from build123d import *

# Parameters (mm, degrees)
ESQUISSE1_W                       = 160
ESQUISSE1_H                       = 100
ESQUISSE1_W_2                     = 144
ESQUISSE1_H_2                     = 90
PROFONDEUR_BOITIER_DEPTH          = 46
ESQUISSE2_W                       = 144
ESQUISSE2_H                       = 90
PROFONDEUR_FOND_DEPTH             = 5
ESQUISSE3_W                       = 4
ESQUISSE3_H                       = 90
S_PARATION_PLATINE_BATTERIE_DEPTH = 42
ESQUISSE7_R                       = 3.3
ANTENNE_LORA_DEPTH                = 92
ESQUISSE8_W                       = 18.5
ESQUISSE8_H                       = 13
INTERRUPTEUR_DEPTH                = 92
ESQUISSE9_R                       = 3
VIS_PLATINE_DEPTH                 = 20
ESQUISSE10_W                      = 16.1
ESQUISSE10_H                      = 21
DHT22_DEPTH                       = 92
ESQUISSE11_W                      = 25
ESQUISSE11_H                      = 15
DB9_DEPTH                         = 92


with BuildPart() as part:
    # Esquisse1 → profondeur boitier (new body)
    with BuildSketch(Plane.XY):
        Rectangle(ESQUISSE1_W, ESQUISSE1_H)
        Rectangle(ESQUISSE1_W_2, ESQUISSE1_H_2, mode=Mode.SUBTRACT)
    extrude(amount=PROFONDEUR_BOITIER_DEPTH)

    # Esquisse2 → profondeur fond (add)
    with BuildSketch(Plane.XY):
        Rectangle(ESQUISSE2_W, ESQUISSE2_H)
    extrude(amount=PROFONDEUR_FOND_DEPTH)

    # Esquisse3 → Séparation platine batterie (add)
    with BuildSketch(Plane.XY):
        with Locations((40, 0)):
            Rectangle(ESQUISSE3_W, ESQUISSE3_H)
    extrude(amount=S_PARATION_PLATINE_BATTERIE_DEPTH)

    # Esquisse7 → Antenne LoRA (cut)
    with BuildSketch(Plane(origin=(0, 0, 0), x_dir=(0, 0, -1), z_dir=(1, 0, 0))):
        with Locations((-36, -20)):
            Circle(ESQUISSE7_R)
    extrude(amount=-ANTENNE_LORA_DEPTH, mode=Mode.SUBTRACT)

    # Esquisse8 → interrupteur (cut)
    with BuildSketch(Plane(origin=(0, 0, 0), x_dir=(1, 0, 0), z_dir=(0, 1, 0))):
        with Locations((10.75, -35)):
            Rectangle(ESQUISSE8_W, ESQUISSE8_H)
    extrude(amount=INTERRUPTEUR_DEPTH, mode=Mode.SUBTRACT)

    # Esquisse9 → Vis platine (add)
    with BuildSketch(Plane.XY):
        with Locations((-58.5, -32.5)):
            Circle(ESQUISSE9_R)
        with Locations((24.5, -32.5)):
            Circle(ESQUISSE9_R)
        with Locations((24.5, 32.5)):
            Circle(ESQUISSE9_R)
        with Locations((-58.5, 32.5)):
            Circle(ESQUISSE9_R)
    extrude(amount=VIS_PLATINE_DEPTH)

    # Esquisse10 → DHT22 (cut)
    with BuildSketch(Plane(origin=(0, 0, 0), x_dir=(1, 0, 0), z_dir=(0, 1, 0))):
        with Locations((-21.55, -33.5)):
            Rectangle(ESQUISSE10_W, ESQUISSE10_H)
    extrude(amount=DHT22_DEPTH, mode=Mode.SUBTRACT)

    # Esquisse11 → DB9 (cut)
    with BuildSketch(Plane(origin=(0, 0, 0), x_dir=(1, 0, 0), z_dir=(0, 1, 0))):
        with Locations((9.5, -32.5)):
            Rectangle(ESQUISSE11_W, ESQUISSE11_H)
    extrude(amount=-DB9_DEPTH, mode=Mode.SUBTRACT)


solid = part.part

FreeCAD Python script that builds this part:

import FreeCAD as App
import Part
import Sketcher
Q = App.Units.Quantity

doc = App.newDocument("Part")
body = doc.addObject("PartDesign::Body", "Body")

# Sketch on XY plane
sketch1 = body.newObject("Sketcher::SketchObject", "Sketch")
sketch1.AttachmentSupport = (doc.getObject("XY_Plane"), [""])
sketch1.MapMode = "FlatFace"
sketch1.addGeometry([
    Part.LineSegment(App.Vector(-80, 50, 0), App.Vector(-80, -50, 0)),  # 0
    Part.LineSegment(App.Vector(-80, -50, 0), App.Vector(80, -50, 0)),  # 1
    Part.LineSegment(App.Vector(80, -50, 0), App.Vector(80, 50, 0)),  # 2
    Part.LineSegment(App.Vector(80, 50, 0), App.Vector(-80, 50, 0)),  # 3
    Part.LineSegment(App.Vector(72, -45, 0), App.Vector(-72, -45, 0)),  # 4
    Part.LineSegment(App.Vector(-72, -45, 0), App.Vector(-72, 45, 0)),  # 5
    Part.LineSegment(App.Vector(-72, 45, 0), App.Vector(72, 45, 0)),  # 6
    Part.LineSegment(App.Vector(72, 45, 0), App.Vector(72, -45, 0)),  # 7
], False)
sketch1.addConstraint([
    Sketcher.Constraint("Coincident", 0, 2, 1, 1),
    Sketcher.Constraint("Coincident", 1, 2, 2, 1),
    Sketcher.Constraint("Coincident", 2, 2, 3, 1),
    Sketcher.Constraint("Coincident", 3, 2, 0, 1),
    Sketcher.Constraint("Coincident", 4, 2, 5, 1),
    Sketcher.Constraint("Coincident", 5, 2, 6, 1),
    Sketcher.Constraint("Coincident", 6, 2, 7, 1),
    Sketcher.Constraint("Coincident", 7, 2, 4, 1),
    Sketcher.Constraint("Vertical", 0),
    Sketcher.Constraint("Horizontal", 1),
    Sketcher.Constraint("Vertical", 2),
    Sketcher.Constraint("Horizontal", 3),
    Sketcher.Constraint("Horizontal", 4),
    Sketcher.Constraint("Vertical", 5),
    Sketcher.Constraint("Horizontal", 6),
    Sketcher.Constraint("Vertical", 7),
    Sketcher.Constraint("Symmetric", 0, 2, 2, 2, -1, 1),
    Sketcher.Constraint("Symmetric", 4, 2, 6, 2, -1, 1),
    Sketcher.Constraint("DistanceX", 1, 1, 1, 2, Q("160 mm")),
    Sketcher.Constraint("DistanceX", 4, 2, 4, 1, Q("144 mm")),
    Sketcher.Constraint("DistanceY", 0, 2, 0, 1, Q("100 mm")),
    Sketcher.Constraint("DistanceY", 5, 1, 5, 2, Q("90 mm")),
])
pad1 = body.newObject("PartDesign::Pad", "Pad")
pad1.Profile = sketch1
pad1.Length = 46

# Sketch on XY plane
sketch2 = body.newObject("Sketcher::SketchObject", "Sketch001")
sketch2.AttachmentSupport = (doc.getObject("XY_Plane"), [""])
sketch2.MapMode = "FlatFace"
sketch2.addGeometry([
    Part.LineSegment(App.Vector(-72, 45, 0), App.Vector(-72, -45, 0)),
    Part.LineSegment(App.Vector(-72, -45, 0), App.Vector(72, -45, 0)),
    Part.LineSegment(App.Vector(72, -45, 0), App.Vector(72, 45, 0)),
    Part.LineSegment(App.Vector(72, 45, 0), App.Vector(-72, 45, 0)),
], False)
sketch2.addConstraint([
    Sketcher.Constraint("Coincident", 0, 2, 1, 1),
    Sketcher.Constraint("Coincident", 1, 2, 2, 1),
    Sketcher.Constraint("Coincident", 2, 2, 3, 1),
    Sketcher.Constraint("Coincident", 3, 2, 0, 1),
    Sketcher.Constraint("Vertical", 0),
    Sketcher.Constraint("Horizontal", 1),
    Sketcher.Constraint("Vertical", 2),
    Sketcher.Constraint("Horizontal", 3),
    Sketcher.Constraint("Symmetric", 0, 2, 2, 2, -1, 1),
    Sketcher.Constraint("DistanceX", 1, 1, 1, 2, Q("144 mm")),
    Sketcher.Constraint("DistanceY", 0, 2, 0, 1, Q("90 mm")),
])
pad2 = body.newObject("PartDesign::Pad", "Pad001")
pad2.Profile = sketch2
pad2.Length = 5

# Sketch on XY plane
sketch3 = body.newObject("Sketcher::SketchObject", "Sketch002")
sketch3.AttachmentSupport = (doc.getObject("XY_Plane"), [""])
sketch3.MapMode = "FlatFace"
sketch3.addGeometry([
    Part.LineSegment(App.Vector(38, 45, 0), App.Vector(38, -45, 0)),
    Part.LineSegment(App.Vector(38, -45, 0), App.Vector(42, -45, 0)),
    Part.LineSegment(App.Vector(42, -45, 0), App.Vector(42, 45, 0)),
    Part.LineSegment(App.Vector(42, 45, 0), App.Vector(38, 45, 0)),
], False)
sketch3.addConstraint([
    Sketcher.Constraint("Coincident", 0, 2, 1, 1),
    Sketcher.Constraint("Coincident", 1, 2, 2, 1),
    Sketcher.Constraint("Coincident", 2, 2, 3, 1),
    Sketcher.Constraint("Coincident", 3, 2, 0, 1),
    Sketcher.Constraint("Vertical", 0),
    Sketcher.Constraint("Horizontal", 1),
    Sketcher.Constraint("Vertical", 2),
    Sketcher.Constraint("Horizontal", 3),
    Sketcher.Constraint("DistanceX", 1, 1, 1, 2, Q("4 mm")),
    Sketcher.Constraint("DistanceY", 0, 2, 0, 1, Q("90 mm")),
    Sketcher.Constraint("DistanceX", -1, 1, 0, 2, Q("38 mm")),
    Sketcher.Constraint("DistanceY", 0, 2, -1, 1, Q("45 mm")),
])
pad3 = body.newObject("PartDesign::Pad", "Pad002")
pad3.Profile = sketch3
pad3.Length = 42

# Sketch on YZ plane
sketch4 = body.newObject("Sketcher::SketchObject", "Sketch003")
sketch4.AttachmentSupport = (doc.getObject("YZ_Plane"), [""])
sketch4.MapMode = "FlatFace"
sketch4.addGeometry(Part.Circle(App.Vector(-20, 36, 0), App.Vector(0, 0, 1), 3.3), False)
sketch4.addConstraint([
    Sketcher.Constraint("Diameter", 0, Q("6.6 mm")),
    Sketcher.Constraint("DistanceX", 0, 3, -1, 1, Q("20 mm")),
    Sketcher.Constraint("DistanceY", -1, 1, 0, 3, Q("36 mm")),
])
pocket1 = body.newObject("PartDesign::Pocket", "Pocket")
pocket1.Profile = sketch4
pocket1.Length = 92

# Sketch on XZ plane
sketch5 = body.newObject("Sketcher::SketchObject", "Sketch004")
sketch5.AttachmentSupport = (doc.getObject("XZ_Plane"), [""])
sketch5.MapMode = "FlatFace"
sketch5.addGeometry([
    Part.LineSegment(App.Vector(1.5, 28.5, 0), App.Vector(1.5, 41.5, 0)),
    Part.LineSegment(App.Vector(1.5, 41.5, 0), App.Vector(20, 41.5, 0)),
    Part.LineSegment(App.Vector(20, 41.5, 0), App.Vector(20, 28.5, 0)),
    Part.LineSegment(App.Vector(20, 28.5, 0), App.Vector(1.5, 28.5, 0)),
], False)
sketch5.addConstraint([
    Sketcher.Constraint("Coincident", 0, 2, 1, 1),
    Sketcher.Constraint("Coincident", 1, 2, 2, 1),
    Sketcher.Constraint("Coincident", 2, 2, 3, 1),
    Sketcher.Constraint("Coincident", 3, 2, 0, 1),
    Sketcher.Constraint("Vertical", 0),
    Sketcher.Constraint("Horizontal", 1),
    Sketcher.Constraint("Vertical", 2),
    Sketcher.Constraint("Horizontal", 3),
    Sketcher.Constraint("DistanceY", 0, 1, 0, 2, Q("13 mm")),
    Sketcher.Constraint("DistanceX", 1, 1, 1, 2, Q("18.5 mm")),
    Sketcher.Constraint("DistanceX", -1, 1, 1, 2, Q("20 mm")),
    Sketcher.Constraint("DistanceY", -1, 1, 0, 2, Q("41.5 mm")),
])
pocket2 = body.newObject("PartDesign::Pocket", "Pocket001")
pocket2.Profile = sketch5
pocket2.Length = 92

# Sketch on XY plane
sketch6 = body.newObject("Sketcher::SketchObject", "Sketch005")
sketch6.AttachmentSupport = (doc.getObject("XY_Plane"), [""])
sketch6.MapMode = "FlatFace"
sketch6.addGeometry([
    Part.Circle(App.Vector(-58.5, -32.5, 0), App.Vector(0, 0, 1), 3),
    Part.Circle(App.Vector(24.5, -32.5, 0), App.Vector(0, 0, 1), 3),
    Part.Circle(App.Vector(24.5, 32.5, 0), App.Vector(0, 0, 1), 3),
    Part.Circle(App.Vector(-58.5, 32.5, 0), App.Vector(0, 0, 1), 3),
], False)
sketch6.addConstraint([
    Sketcher.Constraint("Equal", 0, 1),
    Sketcher.Constraint("Equal", 1, 2),
    Sketcher.Constraint("Equal", 2, 3),
    Sketcher.Constraint("Symmetric", 1, 3, 2, 3, -1),
    Sketcher.Constraint("Symmetric", 0, 3, 3, 3, -1),
    Sketcher.Constraint("Horizontal", 0, 3, 1, 3),
    Sketcher.Constraint("Diameter", 0, Q("6 mm")),
    Sketcher.Constraint("DistanceX", 0, 3, 1, 3, Q("83 mm")),
    Sketcher.Constraint("DistanceY", 1, 3, 2, 3, Q("65 mm")),
    Sketcher.Constraint("DistanceX", 0, 3, -1, 1, Q("58.5 mm")),
])
pad4 = body.newObject("PartDesign::Pad", "Pad003")
pad4.Profile = sketch6
pad4.Length = 20

# Sketch on XZ plane
sketch7 = body.newObject("Sketcher::SketchObject", "Sketch006")
sketch7.AttachmentSupport = (doc.getObject("XZ_Plane"), [""])
sketch7.MapMode = "FlatFace"
sketch7.addGeometry([
    Part.LineSegment(App.Vector(-29.6, 23, 0), App.Vector(-29.6, 44, 0)),
    Part.LineSegment(App.Vector(-29.6, 44, 0), App.Vector(-13.5, 44, 0)),
    Part.LineSegment(App.Vector(-13.5, 44, 0), App.Vector(-13.5, 23, 0)),
    Part.LineSegment(App.Vector(-13.5, 23, 0), App.Vector(-29.6, 23, 0)),
], False)
sketch7.addConstraint([
    Sketcher.Constraint("Coincident", 0, 2, 1, 1),
    Sketcher.Constraint("Coincident", 1, 2, 2, 1),
    Sketcher.Constraint("Coincident", 2, 2, 3, 1),
    Sketcher.Constraint("Coincident", 3, 2, 0, 1),
    Sketcher.Constraint("Vertical", 0),
    Sketcher.Constraint("Horizontal", 1),
    Sketcher.Constraint("Vertical", 2),
    Sketcher.Constraint("Horizontal", 3),
    Sketcher.Constraint("DistanceY", 0, 1, 0, 2, Q("21 mm")),
    Sketcher.Constraint("DistanceX", 1, 1, 1, 2, Q("16.1 mm")),
    Sketcher.Constraint("DistanceY", -1, 1, 0, 2, Q("44 mm")),
    Sketcher.Constraint("DistanceX", 0, 2, -1, 1, Q("29.6 mm")),
])
pocket3 = body.newObject("PartDesign::Pocket", "Pocket002")
pocket3.Profile = sketch7
pocket3.Length = 92

# Sketch on XZ plane
sketch8 = body.newObject("Sketcher::SketchObject", "Sketch007")
sketch8.AttachmentSupport = (doc.getObject("XZ_Plane"), [""])
sketch8.MapMode = "FlatFace"
sketch8.addGeometry([
    Part.LineSegment(App.Vector(-3, 25, 0), App.Vector(-3, 40, 0)),
    Part.LineSegment(App.Vector(-3, 40, 0), App.Vector(22, 40, 0)),
    Part.LineSegment(App.Vector(22, 40, 0), App.Vector(22, 25, 0)),
    Part.LineSegment(App.Vector(22, 25, 0), App.Vector(-3, 25, 0)),
], False)
sketch8.addConstraint([
    Sketcher.Constraint("Coincident", 0, 2, 1, 1),
    Sketcher.Constraint("Coincident", 1, 2, 2, 1),
    Sketcher.Constraint("Coincident", 2, 2, 3, 1),
    Sketcher.Constraint("Coincident", 3, 2, 0, 1),
    Sketcher.Constraint("Vertical", 0),
    Sketcher.Constraint("Horizontal", 1),
    Sketcher.Constraint("Vertical", 2),
    Sketcher.Constraint("Horizontal", 3),
    Sketcher.Constraint("DistanceX", 1, 1, 1, 2, Q("25 mm")),
    Sketcher.Constraint("DistanceY", 0, 1, 0, 2, Q("15 mm")),
    Sketcher.Constraint("DistanceX", 0, 2, -1, 1, Q("3 mm")),
    Sketcher.Constraint("DistanceY", -1, 1, 0, 2, Q("40 mm")),
])
pocket4 = body.newObject("PartDesign::Pocket", "Pocket003")
pocket4.Profile = sketch8
pocket4.Length = 92
pocket4.Reversed = True

doc.recompute()
